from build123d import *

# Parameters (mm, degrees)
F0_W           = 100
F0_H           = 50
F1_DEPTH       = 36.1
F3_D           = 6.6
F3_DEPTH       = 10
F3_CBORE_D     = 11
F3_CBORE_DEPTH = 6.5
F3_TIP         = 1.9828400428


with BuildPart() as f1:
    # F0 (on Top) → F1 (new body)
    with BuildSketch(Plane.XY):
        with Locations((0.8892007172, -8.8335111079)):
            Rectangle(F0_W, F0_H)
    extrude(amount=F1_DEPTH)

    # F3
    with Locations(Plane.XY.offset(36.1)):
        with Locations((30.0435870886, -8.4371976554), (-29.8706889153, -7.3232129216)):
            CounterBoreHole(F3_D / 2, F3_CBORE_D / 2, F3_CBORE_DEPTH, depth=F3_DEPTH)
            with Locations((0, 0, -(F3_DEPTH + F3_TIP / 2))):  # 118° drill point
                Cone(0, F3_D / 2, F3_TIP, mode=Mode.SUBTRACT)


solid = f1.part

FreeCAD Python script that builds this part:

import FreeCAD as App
import Part
import Sketcher

doc = App.newDocument("Part")
body = doc.addObject("PartDesign::Body", "Body")

# Sketch on XY plane
sketch1 = body.newObject("Sketcher::SketchObject", "Sketch")
sketch1.AttachmentSupport = (doc.getObject("XY_Plane"), [""])
sketch1.MapMode = "FlatFace"
sketch1.addGeometry(Part.LineSegment(App.Vector(-49.110799, 16.166489, 0), App.Vector(-49.110799, -33.833511, 0)), False)
sketch1.addGeometry(Part.LineSegment(App.Vector(-49.110799, -33.833511, 0), App.Vector(50.889201, -33.833511, 0)), False)
sketch1.addGeometry(Part.LineSegment(App.Vector(50.889201, -33.833511, 0), App.Vector(50.889201, 16.166489, 0)), False)
sketch1.addGeometry(Part.LineSegment(App.Vector(50.889201, 16.166489, 0), App.Vector(-49.110799, 16.166489, 0)), False)
sketch1.addConstraint(Sketcher.Constraint("Coincident", 0, 2, 1, 1))
sketch1.addConstraint(Sketcher.Constraint("Coincident", 1, 2, 2, 1))
sketch1.addConstraint(Sketcher.Constraint("Coincident", 2, 2, 3, 1))
sketch1.addConstraint(Sketcher.Constraint("Coincident", 3, 2, 0, 1))
sketch1.addConstraint(Sketcher.Constraint("Vertical", 0))
sketch1.addConstraint(Sketcher.Constraint("Horizontal", 1))
sketch1.addConstraint(Sketcher.Constraint("Vertical", 2))
sketch1.addConstraint(Sketcher.Constraint("Horizontal", 3))
sketch1.addConstraint(Sketcher.Constraint("DistanceX", 1, 1, 1, 2, 100.0))
sketch1.addConstraint(Sketcher.Constraint("DistanceY", 0, 2, 0, 1, 50.0))
sketch1.addConstraint(Sketcher.Constraint("DistanceX", 0, 2, -1, 1, 49.110799))
sketch1.addConstraint(Sketcher.Constraint("DistanceY", 0, 2, -1, 1, 33.833511))
pad1 = body.newObject("PartDesign::Pad", "Pad")
pad1.Profile = sketch1
pad1.Length = 36.1

# Sketch on XY plane
sketch2 = body.newObject("Sketcher::SketchObject", "Sketch001")
sketch2.AttachmentSupport = (doc.getObject("XY_Plane"), [""])
sketch2.MapMode = "FlatFace"
sketch2.AttachmentOffset = App.Placement(App.Vector(0, 0, 36.1), App.Rotation())
sketch2.addGeometry(Part.Circle(App.Vector(30.043587, -8.437198, 0), App.Vector(0, 0, 1), 3.3), False)
sketch2.addGeometry(Part.Circle(App.Vector(-29.870689, -7.323213, 0), App.Vector(0, 0, 1), 3.3), False)
sketch2.addConstraint(Sketcher.Constraint("Equal", 0, 1))
sketch2.addConstraint(Sketcher.Constraint("Diameter", 0, 6.6))
sketch2.addConstraint(Sketcher.Constraint("DistanceX", 1, 3, -1, 1, 29.870689))
sketch2.addConstraint(Sketcher.Constraint("DistanceX", -1, 1, 0, 3, 30.043587))
sketch2.addConstraint(Sketcher.Constraint("DistanceY", 0, 3, -1, 1, 8.437198))
sketch2.addConstraint(Sketcher.Constraint("DistanceY", 1, 3, -1, 1, 7.323213))
doc.recompute()
hole = body.newObject("PartDesign::Hole", "Hole")
hole.Profile = sketch2
hole.ThreadType = "None"
hole.Diameter = 6.6
hole.DepthType = "Dimension"
hole.Depth = 10
hole.DrillPoint = "Angled"
hole.DrillPointAngle = 118
hole.HoleCutType = "Counterbore"
hole.HoleCutDiameter = 11
hole.HoleCutDepth = 6.5

doc.recompute()
